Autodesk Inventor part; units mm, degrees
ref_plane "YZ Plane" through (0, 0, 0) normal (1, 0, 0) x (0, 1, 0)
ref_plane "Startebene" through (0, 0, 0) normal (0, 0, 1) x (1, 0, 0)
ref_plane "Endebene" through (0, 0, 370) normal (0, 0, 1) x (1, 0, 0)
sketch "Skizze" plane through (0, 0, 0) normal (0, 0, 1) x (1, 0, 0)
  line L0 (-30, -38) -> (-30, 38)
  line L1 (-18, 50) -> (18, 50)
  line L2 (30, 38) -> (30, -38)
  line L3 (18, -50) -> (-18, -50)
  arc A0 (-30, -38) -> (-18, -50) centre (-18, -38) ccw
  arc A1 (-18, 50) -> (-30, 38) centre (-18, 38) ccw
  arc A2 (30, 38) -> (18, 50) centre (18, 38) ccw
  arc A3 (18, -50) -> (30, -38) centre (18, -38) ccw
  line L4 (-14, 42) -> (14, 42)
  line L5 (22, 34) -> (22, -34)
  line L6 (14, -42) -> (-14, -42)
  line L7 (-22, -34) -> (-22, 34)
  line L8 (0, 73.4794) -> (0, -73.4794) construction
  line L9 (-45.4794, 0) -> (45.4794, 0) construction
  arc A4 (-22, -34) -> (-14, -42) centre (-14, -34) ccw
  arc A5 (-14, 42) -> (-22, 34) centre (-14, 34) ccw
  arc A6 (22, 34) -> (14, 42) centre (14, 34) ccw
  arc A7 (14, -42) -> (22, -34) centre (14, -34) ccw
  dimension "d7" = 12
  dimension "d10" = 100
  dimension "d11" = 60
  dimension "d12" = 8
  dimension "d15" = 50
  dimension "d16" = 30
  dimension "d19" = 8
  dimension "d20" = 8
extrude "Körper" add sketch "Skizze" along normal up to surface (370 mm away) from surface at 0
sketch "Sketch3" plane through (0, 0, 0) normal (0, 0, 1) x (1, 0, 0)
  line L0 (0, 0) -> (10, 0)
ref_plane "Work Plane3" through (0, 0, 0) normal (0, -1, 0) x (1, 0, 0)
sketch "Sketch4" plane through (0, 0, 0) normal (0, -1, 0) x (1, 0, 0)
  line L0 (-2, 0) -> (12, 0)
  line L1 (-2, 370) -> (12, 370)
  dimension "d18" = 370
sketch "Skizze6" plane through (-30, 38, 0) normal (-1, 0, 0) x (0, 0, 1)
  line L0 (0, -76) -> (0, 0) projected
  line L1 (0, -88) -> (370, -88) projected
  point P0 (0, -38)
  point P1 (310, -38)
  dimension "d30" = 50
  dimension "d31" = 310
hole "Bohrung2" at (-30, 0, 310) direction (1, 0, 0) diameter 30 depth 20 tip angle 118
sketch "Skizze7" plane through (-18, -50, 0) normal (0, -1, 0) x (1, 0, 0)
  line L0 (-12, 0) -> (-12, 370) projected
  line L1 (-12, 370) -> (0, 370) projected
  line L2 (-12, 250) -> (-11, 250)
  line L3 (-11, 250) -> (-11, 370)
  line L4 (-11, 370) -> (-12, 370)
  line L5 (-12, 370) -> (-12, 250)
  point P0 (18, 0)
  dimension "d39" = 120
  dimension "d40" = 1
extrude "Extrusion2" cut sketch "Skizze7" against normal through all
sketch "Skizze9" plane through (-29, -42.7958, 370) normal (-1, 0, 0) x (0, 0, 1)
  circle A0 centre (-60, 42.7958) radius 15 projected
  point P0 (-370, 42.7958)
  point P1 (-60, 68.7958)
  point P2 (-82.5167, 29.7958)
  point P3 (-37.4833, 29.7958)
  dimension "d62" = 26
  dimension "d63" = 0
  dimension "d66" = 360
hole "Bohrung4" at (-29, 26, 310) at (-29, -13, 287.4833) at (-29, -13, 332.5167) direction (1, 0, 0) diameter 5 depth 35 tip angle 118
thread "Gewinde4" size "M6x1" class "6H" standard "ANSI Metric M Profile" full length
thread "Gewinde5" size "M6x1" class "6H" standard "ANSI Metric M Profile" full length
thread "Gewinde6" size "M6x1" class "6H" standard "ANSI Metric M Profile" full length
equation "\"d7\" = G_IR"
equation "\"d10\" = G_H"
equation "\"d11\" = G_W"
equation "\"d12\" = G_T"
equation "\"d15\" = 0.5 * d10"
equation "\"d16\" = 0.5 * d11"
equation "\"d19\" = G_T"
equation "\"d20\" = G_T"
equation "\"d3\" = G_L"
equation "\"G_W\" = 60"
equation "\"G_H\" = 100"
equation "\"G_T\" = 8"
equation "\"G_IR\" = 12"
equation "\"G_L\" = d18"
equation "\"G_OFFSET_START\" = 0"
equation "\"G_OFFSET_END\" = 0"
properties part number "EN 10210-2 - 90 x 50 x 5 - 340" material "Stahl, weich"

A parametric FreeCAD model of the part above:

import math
import FreeCAD as App
import Part
import Sketcher
from FreeCAD import Vector
Q = App.Units.Quantity


def add_polygon(sketch, points):
    """Adds a closed chain of lines whose ends are joined by coincident constraints."""
    first, n = sketch.GeometryCount, len(points)
    for a, b in zip(points, points[1:] + points[:1]):
        sketch.addGeometry(Part.LineSegment(App.Vector(*a, 0), App.Vector(*b, 0)), False)
    for i in range(n):
        sketch.addConstraint(Sketcher.Constraint("Coincident", first + i, 2, first + (i + 1) % n, 1))

doc = App.newDocument("Part")
params = doc.addObject("Spreadsheet::Sheet", "Params")
for row, (alias, value) in enumerate([
    ("sketch1_radius", "12 mm"),
    ("sketch1_radius2", "8 mm"),
    ("pad1_length", "370 mm"),
    ("sketch2_diameter", "30 mm"),
    ("hole_diameter", "30 mm"),
    ("hole_depth", "20 mm"),
    ("sketch3_width", "1 mm"),
    ("sketch3_height", "120 mm"),
    ("sketch4_diameter", "5 mm"),
    ("hole2_diameter", "5 mm"),
    ("hole2_depth", "35 mm"),
], start=1):
    params.set(f"A{row}", alias)
    params.set(f"B{row}", "=" + value)
    params.setAlias(f"B{row}", alias)

body = doc.addObject("PartDesign::Body", "Body")

# Sketch on XY plane
sketch1 = doc.addObject("Sketcher::SketchObject", "Sketch")
body.addObject(sketch1)
sketch1.AttachmentSupport = (doc.XY_Plane, [""])
sketch1.MapMode = "FlatFace"
sketch1.addGeometry(Part.LineSegment(Vector(-30, 38, 0), Vector(-30, -38, 0)), False)
sketch1.addGeometry(Part.ArcOfCircle(Part.Circle(Vector(-18, -38, 0), Vector(0, 0, 1), 12), math.radians(180), math.radians(270)), False)
sketch1.addGeometry(Part.LineSegment(Vector(-18, -50, 0), Vector(18, -50, 0)), False)
sketch1.addGeometry(Part.ArcOfCircle(Part.Circle(Vector(18, -38, 0), Vector(0, 0, 1), 12), math.radians(-90), math.radians(0)), False)
sketch1.addGeometry(Part.LineSegment(Vector(30, -38, 0), Vector(30, 38, 0)), False)
sketch1.addGeometry(Part.ArcOfCircle(Part.Circle(Vector(18, 38, 0), Vector(0, 0, 1), 12), math.radians(0), math.radians(90)), False)
sketch1.addGeometry(Part.LineSegment(Vector(18, 50, 0), Vector(-18, 50, 0)), False)
sketch1.addGeometry(Part.ArcOfCircle(Part.Circle(Vector(-18, 38, 0), Vector(0, 0, 1), 12), math.radians(90), math.radians(180)), False)
sketch1.addGeometry(Part.ArcOfCircle(Part.Circle(Vector(-14, 34, 0), Vector(0, 0, 1), 8), math.radians(90), math.radians(180)), False)
sketch1.addGeometry(Part.LineSegment(Vector(-14, 42, 0), Vector(14, 42, 0)), False)
sketch1.addGeometry(Part.ArcOfCircle(Part.Circle(Vector(14, 34, 0), Vector(0, 0, 1), 8), math.radians(0), math.radians(90)), False)
sketch1.addGeometry(Part.LineSegment(Vector(22, 34, 0), Vector(22, -34, 0)), False)
sketch1.addGeometry(Part.ArcOfCircle(Part.Circle(Vector(14, -34, 0), Vector(0, 0, 1), 8), math.radians(-90), math.radians(0)), False)
sketch1.addGeometry(Part.LineSegment(Vector(14, -42, 0), Vector(-14, -42, 0)), False)
sketch1.addGeometry(Part.ArcOfCircle(Part.Circle(Vector(-14, -34, 0), Vector(0, 0, 1), 8), math.radians(180), math.radians(270)), False)
sketch1.addGeometry(Part.LineSegment(Vector(-22, -34, 0), Vector(-22, 34, 0)), False)
sketch1.addConstraint(Sketcher.Constraint("Tangent", 0, 2, 1, 1))
sketch1.addConstraint(Sketcher.Constraint("Tangent", 1, 2, 2, 1))
sketch1.addConstraint(Sketcher.Constraint("Tangent", 2, 2, 3, 1))
sketch1.addConstraint(Sketcher.Constraint("Tangent", 3, 2, 4, 1))
sketch1.addConstraint(Sketcher.Constraint("Tangent", 4, 2, 5, 1))
sketch1.addConstraint(Sketcher.Constraint("Tangent", 5, 2, 6, 1))
sketch1.addConstraint(Sketcher.Constraint("Tangent", 6, 2, 7, 1))
sketch1.addConstraint(Sketcher.Constraint("Tangent", 7, 2, 0, 1))
sketch1.addConstraint(Sketcher.Constraint("Tangent", 8, 1, 9, 1))
sketch1.addConstraint(Sketcher.Constraint("Tangent", 9, 2, 10, 2))
sketch1.addConstraint(Sketcher.Constraint("Tangent", 10, 1, 11, 1))
sketch1.addConstraint(Sketcher.Constraint("Tangent", 11, 2, 12, 2))
sketch1.addConstraint(Sketcher.Constraint("Tangent", 12, 1, 13, 1))
sketch1.addConstraint(Sketcher.Constraint("Tangent", 13, 2, 14, 2))
sketch1.addConstraint(Sketcher.Constraint("Tangent", 14, 1, 15, 1))
sketch1.addConstraint(Sketcher.Constraint("Tangent", 15, 2, 8, 2))
sketch1.addConstraint(Sketcher.Constraint("Vertical", 0))
sketch1.addConstraint(Sketcher.Constraint("Horizontal", 2))
sketch1.addConstraint(Sketcher.Constraint("Vertical", 4))
sketch1.addConstraint(Sketcher.Constraint("Horizontal", 6))
sketch1.addConstraint(Sketcher.Constraint("Horizontal", 9))
sketch1.addConstraint(Sketcher.Constraint("Vertical", 11))
sketch1.addConstraint(Sketcher.Constraint("Horizontal", 13))
sketch1.addConstraint(Sketcher.Constraint("Vertical", 15))
sketch1.addConstraint(Sketcher.Constraint("Equal", 1, 3))
sketch1.addConstraint(Sketcher.Constraint("Equal", 3, 5))
sketch1.addConstraint(Sketcher.Constraint("Equal", 5, 7))
sketch1.addConstraint(Sketcher.Constraint("Equal", 8, 10))
sketch1.addConstraint(Sketcher.Constraint("Equal", 10, 12))
sketch1.addConstraint(Sketcher.Constraint("Equal", 12, 14))
sketch1.addConstraint(Sketcher.Constraint("Symmetric", 1, 3, 5, 3, -1, 1))
sketch1.addConstraint(Sketcher.Constraint("Symmetric", 8, 3, 12, 3, -1, 1))
sketch1.addConstraint(Sketcher.Constraint("Radius", 1, Q("12 mm")))
sketch1.addConstraint(Sketcher.Constraint("Radius", 8, Q("8 mm")))
sketch1.addConstraint(Sketcher.Constraint("DistanceX", 0, 2, -1, 1, Q("30 mm")))
sketch1.addConstraint(Sketcher.Constraint("DistanceY", 1, 2, -1, 1, Q("50 mm")))
sketch1.addConstraint(Sketcher.Constraint("DistanceY", 8, 1, 6, 2, Q("8 mm")))
sketch1.addConstraint(Sketcher.Constraint("DistanceX", 10, 1, 4, 2, Q("8 mm")))
sketch1.setExpression("Constraints[32]", "Params.sketch1_radius")
sketch1.setExpression("Constraints[33]", "Params.sketch1_radius2")
pad1 = doc.addObject("PartDesign::Pad", "Pad")
body.addObject(pad1)
pad1.Profile = sketch1
pad1.setExpression("Length", "Params.pad1_length")

# Sketch on YZ plane
sketch2 = doc.addObject("Sketcher::SketchObject", "Sketch001")
body.addObject(sketch2)
sketch2.AttachmentSupport = (doc.YZ_Plane, [""])
sketch2.MapMode = "FlatFace"
sketch2.AttachmentOffset = App.Placement(Vector(0, 0, -30), App.Rotation())
sketch2.addGeometry(Part.Circle(Vector(0, 310, 0), Vector(0, 0, 1), 15), False)
sketch2.addConstraint(Sketcher.Constraint("PointOnObject", 0, 3, -2))
sketch2.addConstraint(Sketcher.Constraint("Diameter", 0, Q("30 mm")))
sketch2.addConstraint(Sketcher.Constraint("DistanceY", -1, 1, 0, 3, Q("310 mm")))
sketch2.setExpression("Constraints[1]", "Params.sketch2_diameter")
doc.recompute()
hole = doc.addObject("PartDesign::Hole", "Hole")
body.addObject(hole)
hole.Profile = sketch2
hole.ThreadType = "None"
hole.setExpression("Diameter", "Params.hole_diameter")
hole.DepthType = "Dimension"
hole.setExpression("Depth", "Params.hole_depth")
hole.DrillPoint = "Angled"
hole.DrillPointAngle = 118
hole.Reversed = True

# Sketch on XZ plane
sketch3 = doc.addObject("Sketcher::SketchObject", "Sketch002")
body.addObject(sketch3)
sketch3.AttachmentSupport = (doc.XZ_Plane, [""])
sketch3.MapMode = "FlatFace"
sketch3.AttachmentOffset = App.Placement(Vector(0, 0, 50), App.Rotation())
add_polygon(sketch3, [(-30, 370), (-30, 250), (-29, 250), (-29, 370)])  # lines 0-3
sketch3.addConstraint(Sketcher.Constraint("Vertical", 0))
sketch3.addConstraint(Sketcher.Constraint("Horizontal", 1))
sketch3.addConstraint(Sketcher.Constraint("Vertical", 2))
sketch3.addConstraint(Sketcher.Constraint("Horizontal", 3))
sketch3.addConstraint(Sketcher.Constraint("DistanceX", 1, 1, 1, 2, Q("1 mm")))
sketch3.addConstraint(Sketcher.Constraint("DistanceY", 0, 2, 0, 1, Q("120 mm")))
sketch3.addConstraint(Sketcher.Constraint("DistanceX", 0, 2, -1, 1, Q("30 mm")))
sketch3.addConstraint(Sketcher.Constraint("DistanceY", -1, 1, 0, 2, Q("250 mm")))
sketch3.setExpression("Constraints[8]", "Params.sketch3_width")
sketch3.setExpression("Constraints[9]", "Params.sketch3_height")
pocket1 = doc.addObject("PartDesign::Pocket", "Pocket")
body.addObject(pocket1)
pocket1.Profile = sketch3
pocket1.Type = "ThroughAll"

# Sketch on YZ plane
sketch4 = doc.addObject("Sketcher::SketchObject", "Sketch003")
body.addObject(sketch4)
sketch4.AttachmentSupport = (doc.YZ_Plane, [""])
sketch4.MapMode = "FlatFace"
sketch4.AttachmentOffset = App.Placement(Vector(0, 0, -29), App.Rotation())
sketch4.addGeometry(Part.Circle(Vector(26, 310, 0), Vector(0, 0, 1), 2.5), False)
sketch4.addGeometry(Part.Circle(Vector(-13, 287.5, 0), Vector(0, 0, 1), 2.5), False)
sketch4.addGeometry(Part.Circle(Vector(-13, 332.5, 0), Vector(0, 0, 1), 2.5), False)
sketch4.addConstraint(Sketcher.Constraint("Equal", 0, 1))
sketch4.addConstraint(Sketcher.Constraint("Equal", 1, 2))
sketch4.addConstraint(Sketcher.Constraint("Vertical", 1, 3, 2, 3))
sketch4.addConstraint(Sketcher.Constraint("Diameter", 0, Q("5 mm")))
sketch4.addConstraint(Sketcher.Constraint("DistanceX", -1, 1, 0, 3, Q("26 mm")))
sketch4.addConstraint(Sketcher.Constraint("DistanceY", -1, 1, 0, 3, Q("310 mm")))
sketch4.addConstraint(Sketcher.Constraint("DistanceX", 1, 3, -1, 1, Q("13 mm")))
sketch4.addConstraint(Sketcher.Constraint("DistanceY", -1, 1, 1, 3, Q("287.4833 mm")))
sketch4.addConstraint(Sketcher.Constraint("DistanceY", -1, 1, 2, 3, Q("332.5167 mm")))
sketch4.setExpression("Constraints[3]", "Params.sketch4_diameter")
doc.recompute()
hole2 = doc.addObject("PartDesign::Hole", "Hole001")
body.addObject(hole2)
hole2.Profile = sketch4
hole2.ThreadType = "None"
hole2.setExpression("Diameter", "Params.hole2_diameter")
hole2.DepthType = "Dimension"
hole2.setExpression("Depth", "Params.hole2_depth")
hole2.DrillPoint = "Angled"
hole2.DrillPointAngle = 118
hole2.Reversed = True

doc.recompute()
